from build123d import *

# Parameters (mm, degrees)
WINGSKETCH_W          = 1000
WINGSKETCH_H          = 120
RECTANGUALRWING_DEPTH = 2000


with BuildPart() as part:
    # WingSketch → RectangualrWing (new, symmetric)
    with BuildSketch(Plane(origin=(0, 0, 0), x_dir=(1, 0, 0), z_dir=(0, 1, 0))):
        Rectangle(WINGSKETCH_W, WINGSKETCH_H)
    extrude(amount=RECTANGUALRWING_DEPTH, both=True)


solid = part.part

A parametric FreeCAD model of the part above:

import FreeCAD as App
import Part
import Sketcher
Q = App.Units.Quantity


def add_polygon(sketch, points):
    """Adds a closed chain of lines whose ends are joined by coincident constraints."""
    first, n = sketch.GeometryCount, len(points)
    for a, b in zip(points, points[1:] + points[:1]):
        sketch.addGeometry(Part.LineSegment(App.Vector(*a, 0), App.Vector(*b, 0)), False)
    for i in range(n):
        sketch.addConstraint(Sketcher.Constraint("Coincident", first + i, 2, first + (i + 1) % n, 1))

doc = App.newDocument("Part")
params = doc.addObject("Spreadsheet::Sheet", "Params")
for row, (alias, value) in enumerate([
    ("sketch1_width", "1000 mm"),
    ("sketch1_height", "120 mm"),
    ("pad1_length", "4000 mm"),
], start=1):
    params.set(f"A{row}", alias)
    params.set(f"B{row}", "=" + value)
    params.setAlias(f"B{row}", alias)

body = doc.addObject("PartDesign::Body", "Body")

sketch1 = body.newObject("Sketcher::SketchObject", "Sketch")
sketch1.AttachmentSupport = (doc.getObject("XZ_Plane"), [""])
sketch1.MapMode = "FlatFace"
add_polygon(sketch1, [(-500, -60), (-500, 60), (500, 60), (500, -60)])
sketch1.addConstraint([
    Sketcher.Constraint("Vertical", 0),
    Sketcher.Constraint("Horizontal", 1),
    Sketcher.Constraint("Vertical", 2),
    Sketcher.Constraint("Horizontal", 3),
    Sketcher.Constraint("Symmetric", 0, 2, 2, 2, -1, 1),
    Sketcher.Constraint("DistanceX", 1, 1, 1, 2, Q("1000 mm")),
    Sketcher.Constraint("DistanceY", 0, 1, 0, 2, Q("120 mm")),
])
sketch1.setExpression("Constraints[9]", "Params.sketch1_width")
sketch1.setExpression("Constraints[10]", "Params.sketch1_height")
pad1 = body.newObject("PartDesign::Pad", "Pad")
pad1.Profile = sketch1
pad1.setExpression("Length", "Params.pad1_length")
pad1.Midplane = True

doc.recompute()
